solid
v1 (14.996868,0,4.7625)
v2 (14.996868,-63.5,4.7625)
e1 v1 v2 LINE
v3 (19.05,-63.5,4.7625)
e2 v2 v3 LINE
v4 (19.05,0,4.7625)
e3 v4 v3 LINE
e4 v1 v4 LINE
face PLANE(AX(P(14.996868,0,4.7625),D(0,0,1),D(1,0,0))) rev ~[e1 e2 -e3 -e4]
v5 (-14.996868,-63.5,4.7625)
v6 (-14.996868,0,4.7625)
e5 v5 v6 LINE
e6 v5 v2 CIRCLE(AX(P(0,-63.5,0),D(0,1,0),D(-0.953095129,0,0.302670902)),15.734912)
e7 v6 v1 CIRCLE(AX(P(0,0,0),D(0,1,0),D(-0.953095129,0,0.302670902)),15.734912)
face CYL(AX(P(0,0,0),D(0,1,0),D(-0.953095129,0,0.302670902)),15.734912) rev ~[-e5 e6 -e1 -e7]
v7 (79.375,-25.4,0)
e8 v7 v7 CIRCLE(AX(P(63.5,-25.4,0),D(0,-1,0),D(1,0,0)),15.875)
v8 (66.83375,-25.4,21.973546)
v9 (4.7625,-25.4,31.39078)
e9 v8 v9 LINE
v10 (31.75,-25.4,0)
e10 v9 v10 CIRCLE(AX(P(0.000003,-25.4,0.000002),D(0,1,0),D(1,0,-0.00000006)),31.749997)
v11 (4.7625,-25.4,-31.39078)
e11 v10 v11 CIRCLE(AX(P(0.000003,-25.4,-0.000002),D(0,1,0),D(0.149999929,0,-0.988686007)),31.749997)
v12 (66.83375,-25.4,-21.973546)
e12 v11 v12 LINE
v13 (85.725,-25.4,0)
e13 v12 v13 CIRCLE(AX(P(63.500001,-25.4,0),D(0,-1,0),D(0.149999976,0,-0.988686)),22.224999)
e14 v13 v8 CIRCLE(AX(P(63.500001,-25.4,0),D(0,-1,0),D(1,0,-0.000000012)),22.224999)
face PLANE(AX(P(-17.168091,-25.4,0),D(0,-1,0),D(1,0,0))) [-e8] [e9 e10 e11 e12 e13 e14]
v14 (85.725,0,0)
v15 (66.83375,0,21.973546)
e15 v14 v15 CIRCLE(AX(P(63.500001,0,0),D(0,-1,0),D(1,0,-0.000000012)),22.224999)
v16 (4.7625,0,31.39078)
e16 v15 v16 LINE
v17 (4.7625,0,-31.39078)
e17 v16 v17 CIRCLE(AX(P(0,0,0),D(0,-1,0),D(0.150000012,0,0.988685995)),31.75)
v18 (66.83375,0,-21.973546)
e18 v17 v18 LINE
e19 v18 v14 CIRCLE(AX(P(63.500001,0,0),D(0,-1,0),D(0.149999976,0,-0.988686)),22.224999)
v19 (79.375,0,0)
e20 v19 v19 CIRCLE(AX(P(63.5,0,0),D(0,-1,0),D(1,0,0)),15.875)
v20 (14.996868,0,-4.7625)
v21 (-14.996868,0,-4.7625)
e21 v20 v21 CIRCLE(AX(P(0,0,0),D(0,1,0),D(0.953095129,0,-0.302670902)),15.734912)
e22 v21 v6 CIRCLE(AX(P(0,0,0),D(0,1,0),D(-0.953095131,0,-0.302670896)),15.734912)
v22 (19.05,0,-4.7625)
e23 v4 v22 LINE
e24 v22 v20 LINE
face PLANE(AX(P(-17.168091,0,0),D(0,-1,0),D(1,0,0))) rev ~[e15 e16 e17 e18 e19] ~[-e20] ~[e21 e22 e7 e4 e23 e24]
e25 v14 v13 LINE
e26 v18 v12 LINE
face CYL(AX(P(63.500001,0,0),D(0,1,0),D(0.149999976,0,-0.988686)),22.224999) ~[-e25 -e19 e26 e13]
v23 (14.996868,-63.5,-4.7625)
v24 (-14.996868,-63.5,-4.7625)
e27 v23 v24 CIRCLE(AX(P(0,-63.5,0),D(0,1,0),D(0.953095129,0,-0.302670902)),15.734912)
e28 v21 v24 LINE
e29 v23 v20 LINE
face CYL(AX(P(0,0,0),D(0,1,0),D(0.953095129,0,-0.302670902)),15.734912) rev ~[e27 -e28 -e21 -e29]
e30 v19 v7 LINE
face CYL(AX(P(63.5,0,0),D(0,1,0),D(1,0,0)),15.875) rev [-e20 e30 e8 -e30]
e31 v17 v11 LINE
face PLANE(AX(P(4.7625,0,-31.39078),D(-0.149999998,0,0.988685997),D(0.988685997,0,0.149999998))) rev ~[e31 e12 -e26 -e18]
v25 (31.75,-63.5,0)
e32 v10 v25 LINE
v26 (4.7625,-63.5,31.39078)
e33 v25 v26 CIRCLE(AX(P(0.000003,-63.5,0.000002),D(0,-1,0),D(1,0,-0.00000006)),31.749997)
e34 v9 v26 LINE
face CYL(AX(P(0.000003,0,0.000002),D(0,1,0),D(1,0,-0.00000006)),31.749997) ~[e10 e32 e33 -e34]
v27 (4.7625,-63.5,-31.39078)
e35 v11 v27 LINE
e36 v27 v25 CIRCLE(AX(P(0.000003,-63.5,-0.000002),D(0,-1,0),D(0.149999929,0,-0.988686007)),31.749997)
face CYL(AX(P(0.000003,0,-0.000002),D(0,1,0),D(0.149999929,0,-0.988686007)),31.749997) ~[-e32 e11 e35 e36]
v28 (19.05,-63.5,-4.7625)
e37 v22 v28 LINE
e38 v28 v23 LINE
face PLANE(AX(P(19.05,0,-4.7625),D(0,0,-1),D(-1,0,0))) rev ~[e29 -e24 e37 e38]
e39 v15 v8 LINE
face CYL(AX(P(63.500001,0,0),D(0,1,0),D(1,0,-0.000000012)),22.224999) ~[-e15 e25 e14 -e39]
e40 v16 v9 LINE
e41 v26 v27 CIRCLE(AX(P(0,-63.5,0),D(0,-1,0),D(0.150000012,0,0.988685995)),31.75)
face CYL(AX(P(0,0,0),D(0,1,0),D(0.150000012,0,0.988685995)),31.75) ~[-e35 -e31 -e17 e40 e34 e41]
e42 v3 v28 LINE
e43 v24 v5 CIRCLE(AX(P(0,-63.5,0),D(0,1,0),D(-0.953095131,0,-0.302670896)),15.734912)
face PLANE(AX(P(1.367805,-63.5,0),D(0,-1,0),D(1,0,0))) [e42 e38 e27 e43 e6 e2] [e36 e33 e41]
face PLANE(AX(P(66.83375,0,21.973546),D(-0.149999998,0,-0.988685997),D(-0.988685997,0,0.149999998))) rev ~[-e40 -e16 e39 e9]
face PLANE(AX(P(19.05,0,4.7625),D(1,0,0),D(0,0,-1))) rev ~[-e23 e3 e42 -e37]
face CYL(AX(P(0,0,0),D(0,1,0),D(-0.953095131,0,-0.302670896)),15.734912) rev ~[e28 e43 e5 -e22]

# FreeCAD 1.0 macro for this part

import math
import FreeCAD as App
import Part
import Sketcher
from FreeCAD import Vector
Q = App.Units.Quantity

doc = App.newDocument("Part")
params = doc.addObject("Spreadsheet::Sheet", "Params")
for row, (alias, value) in enumerate([
    ("sketch1_diameter", "1.25 in"),
    ("sketch1_radius", "1.25 in"),
    ("sketch1_radius2", "0.875 in"),
    ("sketch1_height", "0.375 in"),
    ("pad1_length", "1 in"),
    ("sketch2_radius", "1.2499999 in"),
    ("sketch2_height", "0.375 in"),
    ("pad2_length", "2.5 in"),
], start=1):
    params.set(f"A{row}", alias)
    params.set(f"B{row}", "=" + value)
    params.setAlias(f"B{row}", alias)

body = doc.addObject("PartDesign::Body", "Body")

sketch1 = body.newObject("Sketcher::SketchObject", "Sketch")
sketch1.AttachmentSupport = (doc.getObject("XZ_Plane"), [""])
sketch1.MapMode = "FlatFace"
sketch1.addGeometry(Part.ArcOfCircle(Part.Circle(Vector(0, 0, 0), Vector(0, 0, 1), 31.7), math.radians(81), math.radians(279)), False)
sketch1.addGeometry(Part.LineSegment(Vector(4.8, -31.4, 0), Vector(66.8, -22, 0)), False)
sketch1.addGeometry(Part.ArcOfCircle(Part.Circle(Vector(63.5, 0, 0), Vector(0, 0, 1), 22.2), math.radians(-81), math.radians(0)), False)
sketch1.addGeometry(Part.ArcOfCircle(Part.Circle(Vector(63.5, 0, 0), Vector(0, 0, 1), 22.2), math.radians(0), math.radians(81)), False)
sketch1.addGeometry(Part.LineSegment(Vector(66.8, 22, 0), Vector(4.8, 31.4, 0)), False)
sketch1.addGeometry(Part.LineSegment(Vector(-19.1, 4.8, 0), Vector(-15, 4.8, 0)), False)
sketch1.addGeometry(Part.ArcOfCircle(Part.Circle(Vector(0, 0, 0), Vector(0, 0, 1), 15.7), math.radians(18), math.radians(162)), False)
sketch1.addGeometry(Part.LineSegment(Vector(15, 4.8, 0), Vector(19.1, 4.8, 0)), False)
sketch1.addGeometry(Part.LineSegment(Vector(19.1, 4.8, 0), Vector(19.1, -4.8, 0)), False)
sketch1.addGeometry(Part.LineSegment(Vector(19.1, -4.8, 0), Vector(15, -4.8, 0)), False)
sketch1.addGeometry(Part.ArcOfCircle(Part.Circle(Vector(0, 0, 0), Vector(0, 0, 1), 15.7), math.radians(-162), math.radians(-18)), False)
sketch1.addGeometry(Part.LineSegment(Vector(-15, -4.8, 0), Vector(-19.1, -4.8, 0)), False)
sketch1.addGeometry(Part.LineSegment(Vector(-19.1, -4.8, 0), Vector(-19.1, 4.8, 0)), False)
sketch1.addGeometry(Part.Circle(Vector(63.5, 0, 0), Vector(0, 0, 1), 15.9), False)
sketch1.addConstraint(Sketcher.Constraint("Tangent", 0, 2, 1, 1))
sketch1.addConstraint(Sketcher.Constraint("Tangent", 1, 2, 2, 1))
sketch1.addConstraint(Sketcher.Constraint("Tangent", 2, 2, 3, 1))
sketch1.addConstraint(Sketcher.Constraint("Tangent", 3, 2, 4, 1))
sketch1.addConstraint(Sketcher.Constraint("Tangent", 4, 2, 0, 1))
sketch1.addConstraint(Sketcher.Constraint("Coincident", 5, 2, 6, 2))
sketch1.addConstraint(Sketcher.Constraint("Coincident", 6, 1, 7, 1))
sketch1.addConstraint(Sketcher.Constraint("Coincident", 7, 2, 8, 1))
sketch1.addConstraint(Sketcher.Constraint("Coincident", 8, 2, 9, 1))
sketch1.addConstraint(Sketcher.Constraint("Coincident", 9, 2, 10, 2))
sketch1.addConstraint(Sketcher.Constraint("Coincident", 10, 1, 11, 1))
sketch1.addConstraint(Sketcher.Constraint("Coincident", 11, 2, 12, 1))
sketch1.addConstraint(Sketcher.Constraint("Coincident", 12, 2, 5, 1))
sketch1.addConstraint(Sketcher.Constraint("Horizontal", 5))
sketch1.addConstraint(Sketcher.Constraint("Horizontal", 7))
sketch1.addConstraint(Sketcher.Constraint("Vertical", 8))
sketch1.addConstraint(Sketcher.Constraint("Horizontal", 9))
sketch1.addConstraint(Sketcher.Constraint("Horizontal", 11))
sketch1.addConstraint(Sketcher.Constraint("Vertical", 12))
sketch1.addConstraint(Sketcher.Constraint("Coincident", 0, 3, -1, 1))
sketch1.addConstraint(Sketcher.Constraint("Coincident", 6, 3, -1, 1))
sketch1.addConstraint(Sketcher.Constraint("Coincident", 10, 3, -1, 1))
sketch1.addConstraint(Sketcher.Constraint("Coincident", 13, 3, 2, 3))
sketch1.addConstraint(Sketcher.Constraint("Equal", 2, 3))
sketch1.addConstraint(Sketcher.Constraint("Equal", 6, 10))
sketch1.addConstraint(Sketcher.Constraint("Symmetric", 7, 2, 11, 2, -1, 1))
sketch1.addConstraint(Sketcher.Constraint("PointOnObject", 2, 3, -1))
sketch1.addConstraint(Sketcher.Constraint("PointOnObject", 2, 2, -1))
sketch1.addConstraint(Sketcher.Constraint("Horizontal", 5, 2, 6, 1))
sketch1.addConstraint(Sketcher.Constraint("Horizontal", 9, 2, 10, 1))
sketch1.addConstraint(Sketcher.Constraint("Diameter", 13, Q("1.25 in")))
sketch1.addConstraint(Sketcher.Constraint("Radius", 0, Q("1.25 in")))
sketch1.addConstraint(Sketcher.Constraint("Radius", 2, Q("0.875 in")))
sketch1.addConstraint(Sketcher.Constraint("DistanceX", -1, 1, 2, 3, Q("2.5 in")))
sketch1.addConstraint(Sketcher.Constraint("DistanceY", 8, 2, 8, 1, Q("0.375 in")))
sketch1.addConstraint(Sketcher.Constraint("DistanceX", -1, 1, 7, 2, Q("0.75 in")))
sketch1.addConstraint(Sketcher.Constraint("Radius", 6, Q("15.734912 mm")))
sketch1.setExpression("Constraints[30]", "Params.sketch1_diameter")
sketch1.setExpression("Constraints[31]", "Params.sketch1_radius")
sketch1.setExpression("Constraints[32]", "Params.sketch1_radius2")
sketch1.setExpression("Constraints[34]", "Params.sketch1_height")
pad1 = body.newObject("PartDesign::Pad", "Pad")
pad1.Profile = sketch1
pad1.setExpression("Length", "Params.pad1_length")

sketch2 = body.newObject("Sketcher::SketchObject", "Sketch001")
sketch2.AttachmentSupport = (doc.getObject("XZ_Plane"), [""])
sketch2.MapMode = "FlatFace"
sketch2.addGeometry(Part.ArcOfCircle(Part.Circle(Vector(0, 0, 0), Vector(0, 0, 1), 31.7), math.radians(-81), math.radians(0)), False)
sketch2.addGeometry(Part.ArcOfCircle(Part.Circle(Vector(0, 0, 0), Vector(0, 0, 1), 31.7), math.radians(0), math.radians(81)), False)
sketch2.addGeometry(Part.ArcOfCircle(Part.Circle(Vector(0, 0, 0), Vector(0, 0, 1), 31.7), math.radians(81), math.radians(279)), False)
sketch2.addGeometry(Part.ArcOfCircle(Part.Circle(Vector(0, 0, 0), Vector(0, 0, 1), 15.7), math.radians(-162), math.radians(-18)), False)
sketch2.addGeometry(Part.ArcOfCircle(Part.Circle(Vector(0, 0, 0), Vector(0, 0, 1), 15.7), math.radians(162), math.radians(198)), False)
sketch2.addGeometry(Part.ArcOfCircle(Part.Circle(Vector(0, 0, 0), Vector(0, 0, 1), 15.7), math.radians(18), math.radians(162)), False)
sketch2.addGeometry(Part.LineSegment(Vector(15, 4.8, 0), Vector(19.1, 4.8, 0)), False)
sketch2.addGeometry(Part.LineSegment(Vector(19.1, 4.8, 0), Vector(19.1, -4.8, 0)), False)
sketch2.addGeometry(Part.LineSegment(Vector(19.1, -4.8, 0), Vector(15, -4.8, 0)), False)
sketch2.addConstraint(Sketcher.Constraint("Tangent", 0, 2, 1, 1))
sketch2.addConstraint(Sketcher.Constraint("Tangent", 1, 2, 2, 1))
sketch2.addConstraint(Sketcher.Constraint("Tangent", 2, 2, 0, 1))
sketch2.addConstraint(Sketcher.Constraint("Tangent", 3, 1, 4, 2))
sketch2.addConstraint(Sketcher.Constraint("Tangent", 4, 1, 5, 2))
sketch2.addConstraint(Sketcher.Constraint("Coincident", 5, 1, 6, 1))
sketch2.addConstraint(Sketcher.Constraint("Coincident", 6, 2, 7, 1))
sketch2.addConstraint(Sketcher.Constraint("Coincident", 7, 2, 8, 1))
sketch2.addConstraint(Sketcher.Constraint("Coincident", 8, 2, 3, 2))
sketch2.addConstraint(Sketcher.Constraint("Horizontal", 6))
sketch2.addConstraint(Sketcher.Constraint("Vertical", 7))
sketch2.addConstraint(Sketcher.Constraint("Horizontal", 8))
sketch2.addConstraint(Sketcher.Constraint("Coincident", 0, 3, -1, 1))
sketch2.addConstraint(Sketcher.Constraint("Coincident", 3, 3, -1, 1))
sketch2.addConstraint(Sketcher.Constraint("Coincident", 5, 3, -1, 1))
sketch2.addConstraint(Sketcher.Constraint("PointOnObject", 0, 2, -1))
sketch2.addConstraint(Sketcher.Constraint("Horizontal", 4, 1, 5, 1))
sketch2.addConstraint(Sketcher.Constraint("Horizontal", 3, 1, 7, 2))
sketch2.addConstraint(Sketcher.Constraint("Vertical", 1, 2, 2, 2))
sketch2.addConstraint(Sketcher.Constraint("Vertical", 3, 1, 4, 1))
sketch2.addConstraint(Sketcher.Constraint("Radius", 0, Q("1.2499999 in")))
sketch2.addConstraint(Sketcher.Constraint("DistanceX", 6, 2, 0, 2, Q("0.5 in")))
sketch2.addConstraint(Sketcher.Constraint("DistanceY", 7, 2, 7, 1, Q("0.375 in")))
sketch2.addConstraint(Sketcher.Constraint("DistanceX", -1, 1, 1, 2, Q("0.1875 in")))
sketch2.addConstraint(Sketcher.Constraint("Radius", 3, Q("15.734912 mm")))
sketch2.setExpression("Constraints[20]", "Params.sketch2_radius")
sketch2.setExpression("Constraints[22]", "Params.sketch2_height")
pad2 = body.newObject("PartDesign::Pad", "Pad001")
pad2.Profile = sketch2
pad2.setExpression("Length", "Params.pad2_length")

doc.recompute()
